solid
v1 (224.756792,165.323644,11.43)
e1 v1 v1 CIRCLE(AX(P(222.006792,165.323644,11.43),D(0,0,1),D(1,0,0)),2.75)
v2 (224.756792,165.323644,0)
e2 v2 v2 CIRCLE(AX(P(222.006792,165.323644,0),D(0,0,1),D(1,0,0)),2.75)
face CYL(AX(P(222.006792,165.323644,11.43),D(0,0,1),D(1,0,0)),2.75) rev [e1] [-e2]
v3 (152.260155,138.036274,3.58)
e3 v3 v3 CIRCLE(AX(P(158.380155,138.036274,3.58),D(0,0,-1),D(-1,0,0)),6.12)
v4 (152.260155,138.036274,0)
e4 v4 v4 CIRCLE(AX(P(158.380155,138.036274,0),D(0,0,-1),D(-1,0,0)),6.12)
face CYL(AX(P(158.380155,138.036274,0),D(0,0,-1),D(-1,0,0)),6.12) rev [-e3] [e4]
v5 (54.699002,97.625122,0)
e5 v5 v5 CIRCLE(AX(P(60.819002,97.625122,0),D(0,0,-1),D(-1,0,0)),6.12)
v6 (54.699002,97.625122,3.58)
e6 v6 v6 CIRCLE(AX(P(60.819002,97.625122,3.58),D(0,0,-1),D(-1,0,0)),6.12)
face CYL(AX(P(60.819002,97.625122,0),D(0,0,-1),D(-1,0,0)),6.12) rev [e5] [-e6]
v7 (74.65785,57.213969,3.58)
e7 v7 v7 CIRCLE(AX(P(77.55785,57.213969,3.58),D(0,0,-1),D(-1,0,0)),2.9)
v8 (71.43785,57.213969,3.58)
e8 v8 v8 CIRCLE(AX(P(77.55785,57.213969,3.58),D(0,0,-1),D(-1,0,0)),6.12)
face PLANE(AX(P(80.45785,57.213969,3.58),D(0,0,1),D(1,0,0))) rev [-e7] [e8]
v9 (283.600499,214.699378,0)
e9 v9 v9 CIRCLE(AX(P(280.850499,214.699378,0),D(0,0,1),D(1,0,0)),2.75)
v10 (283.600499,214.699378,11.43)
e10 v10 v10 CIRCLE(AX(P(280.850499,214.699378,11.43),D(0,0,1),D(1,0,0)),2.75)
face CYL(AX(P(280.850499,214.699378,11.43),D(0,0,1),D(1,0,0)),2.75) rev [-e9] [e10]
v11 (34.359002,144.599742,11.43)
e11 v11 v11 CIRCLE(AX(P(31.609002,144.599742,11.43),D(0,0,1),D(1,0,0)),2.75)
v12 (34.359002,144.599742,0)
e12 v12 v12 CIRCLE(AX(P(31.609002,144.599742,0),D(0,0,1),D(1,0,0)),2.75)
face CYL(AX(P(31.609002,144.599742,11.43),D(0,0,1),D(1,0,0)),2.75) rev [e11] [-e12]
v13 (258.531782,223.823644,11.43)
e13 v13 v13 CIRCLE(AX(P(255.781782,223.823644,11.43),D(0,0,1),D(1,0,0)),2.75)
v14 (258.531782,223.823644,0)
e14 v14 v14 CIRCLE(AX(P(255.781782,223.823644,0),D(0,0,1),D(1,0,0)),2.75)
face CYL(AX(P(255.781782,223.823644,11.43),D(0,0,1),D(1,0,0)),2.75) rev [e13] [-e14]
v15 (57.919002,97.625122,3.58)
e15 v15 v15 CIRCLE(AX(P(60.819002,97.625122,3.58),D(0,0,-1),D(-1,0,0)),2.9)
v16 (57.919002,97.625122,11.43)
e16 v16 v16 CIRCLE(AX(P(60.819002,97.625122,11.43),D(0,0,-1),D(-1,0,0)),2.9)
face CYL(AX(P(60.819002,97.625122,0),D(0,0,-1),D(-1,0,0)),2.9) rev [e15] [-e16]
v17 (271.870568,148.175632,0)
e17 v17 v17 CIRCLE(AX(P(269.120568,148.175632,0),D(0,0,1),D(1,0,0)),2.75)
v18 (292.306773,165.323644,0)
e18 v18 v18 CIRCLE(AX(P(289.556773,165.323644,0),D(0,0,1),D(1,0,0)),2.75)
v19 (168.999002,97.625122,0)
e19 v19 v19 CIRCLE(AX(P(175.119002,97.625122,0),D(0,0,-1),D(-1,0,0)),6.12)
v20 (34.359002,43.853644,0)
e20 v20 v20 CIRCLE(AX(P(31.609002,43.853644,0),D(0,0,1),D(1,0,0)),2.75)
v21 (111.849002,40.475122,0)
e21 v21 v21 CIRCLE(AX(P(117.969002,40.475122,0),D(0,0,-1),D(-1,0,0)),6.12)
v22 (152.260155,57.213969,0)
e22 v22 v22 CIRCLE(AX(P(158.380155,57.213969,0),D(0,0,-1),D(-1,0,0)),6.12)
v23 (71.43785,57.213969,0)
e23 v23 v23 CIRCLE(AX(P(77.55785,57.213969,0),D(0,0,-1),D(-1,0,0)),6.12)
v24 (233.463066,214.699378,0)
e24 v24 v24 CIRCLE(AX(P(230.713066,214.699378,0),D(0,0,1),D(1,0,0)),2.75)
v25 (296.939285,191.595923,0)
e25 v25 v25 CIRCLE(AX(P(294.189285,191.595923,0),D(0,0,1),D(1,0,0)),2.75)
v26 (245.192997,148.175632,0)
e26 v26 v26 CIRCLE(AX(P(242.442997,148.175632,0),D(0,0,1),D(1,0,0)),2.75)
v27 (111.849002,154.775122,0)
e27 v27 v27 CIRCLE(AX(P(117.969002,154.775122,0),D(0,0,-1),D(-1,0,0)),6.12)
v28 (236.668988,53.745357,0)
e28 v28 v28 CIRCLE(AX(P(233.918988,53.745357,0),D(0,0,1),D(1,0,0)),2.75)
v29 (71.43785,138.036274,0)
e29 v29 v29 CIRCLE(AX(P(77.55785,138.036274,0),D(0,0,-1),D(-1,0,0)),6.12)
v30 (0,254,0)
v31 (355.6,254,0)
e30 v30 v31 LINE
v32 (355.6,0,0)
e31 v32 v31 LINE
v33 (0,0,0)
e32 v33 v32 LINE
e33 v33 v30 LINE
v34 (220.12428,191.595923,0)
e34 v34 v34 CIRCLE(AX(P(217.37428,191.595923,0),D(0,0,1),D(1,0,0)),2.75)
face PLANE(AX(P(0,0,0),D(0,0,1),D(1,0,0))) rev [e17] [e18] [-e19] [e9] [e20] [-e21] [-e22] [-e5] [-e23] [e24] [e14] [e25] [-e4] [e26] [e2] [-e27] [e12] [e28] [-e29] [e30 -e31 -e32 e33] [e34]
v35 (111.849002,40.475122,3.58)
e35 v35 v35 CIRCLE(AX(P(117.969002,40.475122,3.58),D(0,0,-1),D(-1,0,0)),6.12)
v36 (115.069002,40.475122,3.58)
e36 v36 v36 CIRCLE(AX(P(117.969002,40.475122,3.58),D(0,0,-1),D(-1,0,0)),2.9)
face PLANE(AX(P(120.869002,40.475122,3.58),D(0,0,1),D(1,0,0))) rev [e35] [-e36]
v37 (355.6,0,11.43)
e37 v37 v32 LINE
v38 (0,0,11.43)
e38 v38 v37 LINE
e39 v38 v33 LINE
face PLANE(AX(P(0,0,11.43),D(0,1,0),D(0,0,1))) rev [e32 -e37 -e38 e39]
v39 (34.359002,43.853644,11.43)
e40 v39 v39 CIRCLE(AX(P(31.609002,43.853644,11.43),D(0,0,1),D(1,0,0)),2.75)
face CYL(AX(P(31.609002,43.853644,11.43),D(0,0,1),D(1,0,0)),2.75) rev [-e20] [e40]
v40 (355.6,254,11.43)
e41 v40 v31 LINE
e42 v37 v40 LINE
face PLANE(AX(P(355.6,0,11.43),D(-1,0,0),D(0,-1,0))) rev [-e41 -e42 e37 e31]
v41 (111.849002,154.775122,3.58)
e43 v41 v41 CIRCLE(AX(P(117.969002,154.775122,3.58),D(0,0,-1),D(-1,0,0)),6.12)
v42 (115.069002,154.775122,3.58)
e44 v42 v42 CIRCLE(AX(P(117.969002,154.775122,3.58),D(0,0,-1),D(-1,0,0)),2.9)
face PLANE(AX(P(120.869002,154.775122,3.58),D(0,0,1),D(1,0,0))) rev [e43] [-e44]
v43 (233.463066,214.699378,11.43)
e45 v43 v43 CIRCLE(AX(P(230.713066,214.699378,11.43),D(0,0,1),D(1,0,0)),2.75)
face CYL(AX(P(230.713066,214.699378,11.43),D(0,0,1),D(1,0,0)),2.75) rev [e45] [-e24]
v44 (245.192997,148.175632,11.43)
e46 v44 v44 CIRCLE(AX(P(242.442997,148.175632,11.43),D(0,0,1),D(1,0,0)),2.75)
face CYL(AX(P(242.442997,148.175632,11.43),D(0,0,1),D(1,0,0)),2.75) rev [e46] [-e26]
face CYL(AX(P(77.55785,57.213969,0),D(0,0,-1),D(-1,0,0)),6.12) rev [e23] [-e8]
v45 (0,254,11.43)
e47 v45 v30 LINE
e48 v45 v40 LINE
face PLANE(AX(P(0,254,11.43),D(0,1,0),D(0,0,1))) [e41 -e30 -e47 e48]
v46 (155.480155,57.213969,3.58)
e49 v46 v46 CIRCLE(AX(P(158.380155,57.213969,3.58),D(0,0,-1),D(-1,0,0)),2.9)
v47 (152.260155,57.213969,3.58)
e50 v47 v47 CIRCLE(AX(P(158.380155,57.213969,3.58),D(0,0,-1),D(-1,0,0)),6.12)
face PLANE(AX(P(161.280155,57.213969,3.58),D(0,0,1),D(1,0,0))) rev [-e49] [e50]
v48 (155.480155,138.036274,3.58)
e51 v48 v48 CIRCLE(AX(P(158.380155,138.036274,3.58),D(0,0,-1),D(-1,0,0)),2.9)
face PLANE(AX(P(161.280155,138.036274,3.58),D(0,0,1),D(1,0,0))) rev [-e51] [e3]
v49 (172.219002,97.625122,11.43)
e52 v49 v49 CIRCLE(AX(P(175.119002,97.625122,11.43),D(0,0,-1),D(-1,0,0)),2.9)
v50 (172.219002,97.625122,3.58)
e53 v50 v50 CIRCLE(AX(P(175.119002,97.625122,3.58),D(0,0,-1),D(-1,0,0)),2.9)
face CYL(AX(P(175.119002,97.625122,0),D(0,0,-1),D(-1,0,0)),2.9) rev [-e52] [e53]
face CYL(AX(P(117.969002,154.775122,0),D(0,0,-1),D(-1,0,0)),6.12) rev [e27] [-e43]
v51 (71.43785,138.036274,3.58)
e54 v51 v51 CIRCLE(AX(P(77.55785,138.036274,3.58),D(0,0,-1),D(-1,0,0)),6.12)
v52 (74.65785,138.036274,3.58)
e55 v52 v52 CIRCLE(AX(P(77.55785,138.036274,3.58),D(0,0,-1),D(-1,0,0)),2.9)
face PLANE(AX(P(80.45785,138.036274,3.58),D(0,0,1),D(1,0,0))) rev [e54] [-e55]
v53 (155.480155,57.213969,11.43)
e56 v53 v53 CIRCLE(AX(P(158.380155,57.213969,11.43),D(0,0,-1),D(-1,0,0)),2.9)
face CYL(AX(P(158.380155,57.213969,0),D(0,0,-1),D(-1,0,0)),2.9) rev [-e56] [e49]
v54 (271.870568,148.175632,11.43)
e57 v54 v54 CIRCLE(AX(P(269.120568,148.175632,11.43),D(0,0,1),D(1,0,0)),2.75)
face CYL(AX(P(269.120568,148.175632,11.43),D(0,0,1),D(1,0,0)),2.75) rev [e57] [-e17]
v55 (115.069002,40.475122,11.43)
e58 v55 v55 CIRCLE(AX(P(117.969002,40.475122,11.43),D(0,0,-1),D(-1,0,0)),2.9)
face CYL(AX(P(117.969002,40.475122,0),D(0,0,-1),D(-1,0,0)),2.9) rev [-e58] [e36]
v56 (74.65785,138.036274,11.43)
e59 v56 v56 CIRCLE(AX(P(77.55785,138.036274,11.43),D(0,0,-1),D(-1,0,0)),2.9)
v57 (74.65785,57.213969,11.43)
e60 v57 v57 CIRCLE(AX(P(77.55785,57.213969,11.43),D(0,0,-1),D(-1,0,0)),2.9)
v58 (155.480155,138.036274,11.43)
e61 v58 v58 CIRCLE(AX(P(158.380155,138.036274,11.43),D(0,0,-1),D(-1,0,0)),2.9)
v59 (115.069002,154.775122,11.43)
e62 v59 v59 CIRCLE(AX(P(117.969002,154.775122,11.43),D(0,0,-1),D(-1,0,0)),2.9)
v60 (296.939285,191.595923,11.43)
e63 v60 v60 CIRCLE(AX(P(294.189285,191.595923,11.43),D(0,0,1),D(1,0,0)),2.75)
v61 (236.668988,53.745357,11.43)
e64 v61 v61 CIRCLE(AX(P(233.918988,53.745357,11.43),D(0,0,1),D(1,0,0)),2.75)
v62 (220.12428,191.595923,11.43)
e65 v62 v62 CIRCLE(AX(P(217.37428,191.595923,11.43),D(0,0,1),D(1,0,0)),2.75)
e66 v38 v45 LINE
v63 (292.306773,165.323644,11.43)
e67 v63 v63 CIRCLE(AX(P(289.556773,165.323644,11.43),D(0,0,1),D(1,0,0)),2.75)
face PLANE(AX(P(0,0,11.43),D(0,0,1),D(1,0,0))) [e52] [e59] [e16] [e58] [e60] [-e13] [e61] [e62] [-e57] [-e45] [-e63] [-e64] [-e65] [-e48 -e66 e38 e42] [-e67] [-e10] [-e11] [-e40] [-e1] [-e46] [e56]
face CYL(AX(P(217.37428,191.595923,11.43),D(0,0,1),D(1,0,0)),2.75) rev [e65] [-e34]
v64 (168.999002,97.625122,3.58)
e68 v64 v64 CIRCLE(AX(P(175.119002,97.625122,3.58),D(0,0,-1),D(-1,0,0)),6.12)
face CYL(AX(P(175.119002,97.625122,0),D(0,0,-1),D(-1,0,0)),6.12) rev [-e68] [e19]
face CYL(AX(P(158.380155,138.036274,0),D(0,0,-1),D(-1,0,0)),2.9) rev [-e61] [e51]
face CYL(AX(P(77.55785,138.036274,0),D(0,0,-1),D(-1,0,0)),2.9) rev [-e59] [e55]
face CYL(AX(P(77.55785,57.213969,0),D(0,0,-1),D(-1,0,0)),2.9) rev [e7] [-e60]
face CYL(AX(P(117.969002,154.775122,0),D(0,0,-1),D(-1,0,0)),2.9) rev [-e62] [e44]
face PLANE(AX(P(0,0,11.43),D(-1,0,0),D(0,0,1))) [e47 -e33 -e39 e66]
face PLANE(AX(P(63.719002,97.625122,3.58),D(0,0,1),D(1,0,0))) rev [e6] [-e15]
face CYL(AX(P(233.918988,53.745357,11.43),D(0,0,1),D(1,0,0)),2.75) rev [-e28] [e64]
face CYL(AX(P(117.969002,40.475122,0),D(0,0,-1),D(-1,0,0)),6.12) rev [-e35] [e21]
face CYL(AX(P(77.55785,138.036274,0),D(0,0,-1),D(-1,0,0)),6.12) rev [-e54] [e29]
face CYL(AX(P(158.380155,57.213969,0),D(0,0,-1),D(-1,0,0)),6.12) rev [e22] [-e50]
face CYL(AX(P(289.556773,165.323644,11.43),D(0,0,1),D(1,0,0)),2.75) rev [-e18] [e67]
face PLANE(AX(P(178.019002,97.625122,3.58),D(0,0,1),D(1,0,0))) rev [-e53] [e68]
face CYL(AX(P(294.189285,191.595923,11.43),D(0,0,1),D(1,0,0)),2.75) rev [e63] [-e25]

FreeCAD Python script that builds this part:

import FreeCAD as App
import Part
import Sketcher

V = App.Vector
Q = App.Units.Quantity


def add_polygon(sketch, points):
    """Adds a closed chain of lines whose ends are joined by coincident constraints."""
    first, n = sketch.GeometryCount, len(points)
    for a, b in zip(points, points[1:] + points[:1]):
        sketch.addGeometry(Part.LineSegment(App.Vector(*a, 0), App.Vector(*b, 0)), False)
    for i in range(n):
        sketch.addConstraint(Sketcher.Constraint("Coincident", first + i, 2, first + (i + 1) % n, 1))

doc = App.newDocument("Part")
params = doc.addObject("Spreadsheet::Sheet", "Params")
for row, (alias, value) in enumerate([
    ("sketch1_width", "14 in"),
    ("sketch1_height", "10 in"),
    ("pad1_length", "0.45 in"),
    ("hole_diameter", "5.8 mm"),
    ("hole_cbore_diameter", "12.24 mm"),
    ("hole_cbore_depth", "3.58 mm"),
    ("hole2_diameter", "5.5 mm"),
], start=1):
    params.set(f"A{row}", alias)
    params.set(f"B{row}", "=" + value)
    params.setAlias(f"B{row}", alias)

body = doc.addObject("PartDesign::Body", "Body")

# Sketch on XY plane
sketch1 = doc.addObject("Sketcher::SketchObject", "Sketch")
body.addObject(sketch1)
sketch1.AttachmentSupport = (doc.XY_Plane, [""])
sketch1.MapMode = "FlatFace"
add_polygon(sketch1, [(0, 254), (0, 0), (356, 0), (356, 254)])  # lines 0-3
sketch1.addConstraint([
    Sketcher.Constraint("Vertical", 0),
    Sketcher.Constraint("Horizontal", 1),
    Sketcher.Constraint("Vertical", 2),
    Sketcher.Constraint("Horizontal", 3),
    Sketcher.Constraint("Coincident", 0, 2, -1, 1),
    Sketcher.Constraint("DistanceX", 1, 1, 1, 2, Q("14 in")),
    Sketcher.Constraint("DistanceY", 0, 2, 0, 1, Q("10 in")),
])
sketch1.setExpression("Constraints[9]", "Params.sketch1_width")
sketch1.setExpression("Constraints[10]", "Params.sketch1_height")
pad1 = doc.addObject("PartDesign::Pad", "Pad")
body.addObject(pad1)
pad1.Profile = sketch1
pad1.setExpression("Length", "Params.pad1_length")

# Sketch on XY plane
sketch2 = doc.addObject("Sketcher::SketchObject", "Sketch001")
body.addObject(sketch2)
sketch2.AttachmentSupport = (doc.XY_Plane, [""])
sketch2.MapMode = "FlatFace"
sketch2.addGeometry([
    Part.Circle(V(158.4, 138, 0), V(0, 0, 1), 2.9),  # 0
    Part.Circle(V(118, 154.8, 0), V(0, 0, 1), 2.9),  # 1
    Part.Circle(V(77.6, 138, 0), V(0, 0, 1), 2.9),  # 2
    Part.Circle(V(60.8, 97.6, 0), V(0, 0, 1), 2.9),  # 3
    Part.Circle(V(77.6, 57.2, 0), V(0, 0, 1), 2.9),  # 4
    Part.Circle(V(118, 40.5, 0), V(0, 0, 1), 2.9),  # 5
    Part.Circle(V(158.4, 57.2, 0), V(0, 0, 1), 2.9),  # 6
    Part.Circle(V(175.1, 97.6, 0), V(0, 0, 1), 2.9),  # 7
], False)
sketch2.addConstraint([
    Sketcher.Constraint("Equal", 0, 1),
    Sketcher.Constraint("Equal", 1, 2),
    Sketcher.Constraint("Equal", 2, 3),
    Sketcher.Constraint("Equal", 3, 4),
    Sketcher.Constraint("Equal", 4, 5),
    Sketcher.Constraint("Equal", 5, 6),
    Sketcher.Constraint("Equal", 6, 7),
    Sketcher.Constraint("Horizontal", 0, 3, 2, 3),
    Sketcher.Constraint("Horizontal", 4, 3, 6, 3),
    Sketcher.Constraint("Horizontal", 3, 3, 7, 3),
    Sketcher.Constraint("Vertical", 2, 3, 4, 3),
    Sketcher.Constraint("Vertical", 1, 3, 5, 3),
    Sketcher.Constraint("Vertical", 0, 3, 6, 3),
    Sketcher.Constraint("DistanceY", 5, 3, 1, 3, Q("4.5 in")),
    Sketcher.Constraint("Diameter", 0, 5.8),
    Sketcher.Constraint("DistanceX", 3, 3, 1, 3, Q("2.25 in")),
    Sketcher.Constraint("DistanceY", 3, 3, 1, 3, Q("2.25 in")),
    Sketcher.Constraint("DistanceX", 1, 3, 7, 3, Q("2.25 in")),
    Sketcher.Constraint("DistanceY", -1, 1, 1, 3, 154.775122),
    Sketcher.Constraint("DistanceX", -1, 1, 2, 3, 77.55785),
    Sketcher.Constraint("DistanceY", -1, 1, 4, 3, 57.213969),
    Sketcher.Constraint("DistanceX", -1, 1, 0, 3, 158.380155),
    Sketcher.Constraint("DistanceY", -1, 1, 0, 3, 138.036274),
    Sketcher.Constraint("DistanceX", -1, 1, 1, 3, 117.969002),
])
doc.recompute()
hole = doc.addObject("PartDesign::Hole", "Hole")
body.addObject(hole)
hole.Profile = sketch2
hole.ThreadType = "None"
hole.setExpression("Diameter", "Params.hole_diameter")
hole.DepthType = "ThroughAll"
hole.HoleCutType = "Counterbore"
hole.setExpression("HoleCutDiameter", "Params.hole_cbore_diameter")
hole.setExpression("HoleCutDepth", "Params.hole_cbore_depth")
hole.Reversed = True

# Sketch on XY plane
sketch3 = doc.addObject("Sketcher::SketchObject", "Sketch002")
body.addObject(sketch3)
sketch3.AttachmentSupport = (doc.XY_Plane, [""])
sketch3.MapMode = "FlatFace"
sketch3.AttachmentOffset = App.Placement(V(0, 0, 0.45 * 25.4), App.Rotation())
sketch3.addGeometry([
    Part.Circle(V(31.6, 43.9, 0), V(0, 0, 1), 2.8),  # 0
    Part.Circle(V(31.6, 144.6, 0), V(0, 0, 1), 2.8),  # 1
    Part.Circle(V(233.9, 53.7, 0), V(0, 0, 1), 2.8),  # 2
    Part.Circle(V(255.8, 223.8, 0), V(0, 0, 1), 2.8),  # 3
    Part.Circle(V(280.9, 214.7, 0), V(0, 0, 1), 2.8),  # 4
    Part.Circle(V(294.2, 191.6, 0), V(0, 0, 1), 2.8),  # 5
    Part.Circle(V(289.6, 165.3, 0), V(0, 0, 1), 2.8),  # 6
    Part.Circle(V(269.1, 148.2, 0), V(0, 0, 1), 2.8),  # 7
    Part.Circle(V(242.4, 148.2, 0), V(0, 0, 1), 2.8),  # 8
    Part.Circle(V(222, 165.3, 0), V(0, 0, 1), 2.8),  # 9
    Part.Circle(V(217.4, 191.6, 0), V(0, 0, 1), 2.8),  # 10
    Part.Circle(V(230.7, 214.7, 0), V(0, 0, 1), 2.8),  # 11
], False)
sketch3.addConstraint([
    Sketcher.Constraint("Equal", 0, 1),
    Sketcher.Constraint("Equal", 1, 2),
    Sketcher.Constraint("Equal", 2, 3),
    Sketcher.Constraint("Equal", 3, 4),
    Sketcher.Constraint("Equal", 4, 5),
    Sketcher.Constraint("Equal", 5, 6),
    Sketcher.Constraint("Equal", 6, 7),
    Sketcher.Constraint("Equal", 7, 8),
    Sketcher.Constraint("Equal", 8, 9),
    Sketcher.Constraint("Equal", 9, 10),
    Sketcher.Constraint("Equal", 10, 11),
    Sketcher.Constraint("Horizontal", 7, 3, 8, 3),
    Sketcher.Constraint("Horizontal", 6, 3, 9, 3),
    Sketcher.Constraint("Horizontal", 5, 3, 10, 3),
    Sketcher.Constraint("Horizontal", 4, 3, 11, 3),
    Sketcher.Constraint("Vertical", 0, 3, 1, 3),
    Sketcher.Constraint("Diameter", 0, 5.5),
    Sketcher.Constraint("DistanceX", -1, 1, 8, 3, Q("9.5449999 in")),
    Sketcher.Constraint("DistanceX", 1, 3, 3, 3, Q("8.8257 in")),
    Sketcher.Constraint("DistanceX", -1, 1, 4, 3, 280.850499),
    Sketcher.Constraint("DistanceY", 0, 3, 3, 3, 179.97),
    Sketcher.Constraint("DistanceY", 6, 3, 3, 3, 58.5),
    Sketcher.Constraint("DistanceX", -1, 1, 2, 3, 233.918988),
    Sketcher.Constraint("DistanceX", -1, 1, 9, 3, 222.006792),
    Sketcher.Constraint("DistanceX", -1, 1, 10, 3, 217.37428),
    Sketcher.Constraint("DistanceY", 2, 3, 4, 3, 160.954021),
    Sketcher.Constraint("DistanceY", 5, 3, 3, 3, 32.227721),
    Sketcher.Constraint("DistanceY", 1, 3, 5, 3, 46.996181),
    Sketcher.Constraint("DistanceX", 6, 3, 5, 3, 4.632512),
    Sketcher.Constraint("DistanceX", 3, 3, 6, 3, 33.774991),
    Sketcher.Constraint("DistanceY", 7, 3, 5, 3, 43.420291),
    Sketcher.Constraint("DistanceX", 7, 3, 4, 3, 11.729931),
    Sketcher.Constraint("DistanceX", 9, 3, 6, 3, 67.549981),
    Sketcher.Constraint("DistanceX", 11, 3, 8, 3, 11.729931),
    Sketcher.Constraint("DistanceY", -1, 1, 0, 3, 43.853644),
    Sketcher.Constraint("DistanceY", -1, 1, 2, 3, 53.745357),
])
doc.recompute()
hole2 = doc.addObject("PartDesign::Hole", "Hole001")
body.addObject(hole2)
hole2.Profile = sketch3
hole2.ThreadType = "None"
hole2.setExpression("Diameter", "Params.hole2_diameter")
hole2.DepthType = "ThroughAll"

doc.recompute()
